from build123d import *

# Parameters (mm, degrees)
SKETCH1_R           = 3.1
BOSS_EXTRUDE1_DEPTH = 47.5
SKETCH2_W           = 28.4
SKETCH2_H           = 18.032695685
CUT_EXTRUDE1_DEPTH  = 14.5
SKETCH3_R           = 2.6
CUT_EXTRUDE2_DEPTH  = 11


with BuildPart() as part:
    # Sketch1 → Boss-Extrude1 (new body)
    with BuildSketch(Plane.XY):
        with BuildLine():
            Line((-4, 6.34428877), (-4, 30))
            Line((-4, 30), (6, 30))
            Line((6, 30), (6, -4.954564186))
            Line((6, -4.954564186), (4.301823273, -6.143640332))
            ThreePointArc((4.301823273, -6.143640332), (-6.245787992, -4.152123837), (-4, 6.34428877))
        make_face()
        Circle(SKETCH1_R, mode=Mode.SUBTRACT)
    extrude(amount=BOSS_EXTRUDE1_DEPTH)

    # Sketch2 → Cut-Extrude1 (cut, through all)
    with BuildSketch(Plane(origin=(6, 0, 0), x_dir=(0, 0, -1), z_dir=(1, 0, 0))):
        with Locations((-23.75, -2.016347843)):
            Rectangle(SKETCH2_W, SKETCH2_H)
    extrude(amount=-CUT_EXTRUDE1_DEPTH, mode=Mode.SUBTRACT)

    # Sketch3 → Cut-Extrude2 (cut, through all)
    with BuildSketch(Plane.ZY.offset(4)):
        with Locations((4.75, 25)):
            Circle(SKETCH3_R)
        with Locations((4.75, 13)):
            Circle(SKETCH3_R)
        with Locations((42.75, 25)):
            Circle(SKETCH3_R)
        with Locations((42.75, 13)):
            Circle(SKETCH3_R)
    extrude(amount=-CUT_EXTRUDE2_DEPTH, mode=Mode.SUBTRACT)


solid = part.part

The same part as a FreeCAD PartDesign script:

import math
import FreeCAD as App
import Part
import Sketcher
Q = App.Units.Quantity


def add_polygon(sketch, points):
    """Adds a closed chain of lines whose ends are joined by coincident constraints."""
    first, n = sketch.GeometryCount, len(points)
    for a, b in zip(points, points[1:] + points[:1]):
        sketch.addGeometry(Part.LineSegment(App.Vector(*a, 0), App.Vector(*b, 0)), False)
    for i in range(n):
        sketch.addConstraint(Sketcher.Constraint("Coincident", first + i, 2, first + (i + 1) % n, 1))

doc = App.newDocument("Part")
body = doc.addObject("PartDesign::Body", "Body")

sketch1 = body.newObject("Sketcher::SketchObject", "Sketch")
sketch1.AttachmentSupport = (doc.getObject("XY_Plane"), [""])
sketch1.MapMode = "FlatFace"
sketch1.addGeometry([
    Part.LineSegment(App.Vector(-4, 30, 0), App.Vector(-4, 6.3, 0)),
    Part.ArcOfCircle(Part.Circle(App.Vector(0, 0, 0), App.Vector(0, 0, 1), 7.5), math.radians(122), math.radians(305)),
    Part.LineSegment(App.Vector(4.3, -6.1, 0), App.Vector(6, -5, 0)),
    Part.LineSegment(App.Vector(6, -5, 0), App.Vector(6, 30, 0)),
    Part.LineSegment(App.Vector(6, 30, 0), App.Vector(-4, 30, 0)),
    Part.Circle(App.Vector(0, 0, 0), App.Vector(0, 0, 1), 3.1),
], False)
sketch1.addConstraint([
    Sketcher.Constraint("Coincident", 0, 2, 1, 1),
    Sketcher.Constraint("Tangent", 1, 2, 2, 1),
    Sketcher.Constraint("Coincident", 2, 2, 3, 1),
    Sketcher.Constraint("Coincident", 3, 2, 4, 1),
    Sketcher.Constraint("Coincident", 4, 2, 0, 1),
    Sketcher.Constraint("Vertical", 0),
    Sketcher.Constraint("Vertical", 3),
    Sketcher.Constraint("Horizontal", 4),
    Sketcher.Constraint("Coincident", 1, 3, -1, 1),
    Sketcher.Constraint("Coincident", 5, 3, -1, 1),
    Sketcher.Constraint("Diameter", 5, Q("6.2 mm")),
    Sketcher.Constraint("Radius", 1, Q("7.5 mm")),
    Sketcher.Constraint("DistanceX", 4, 2, 4, 1, Q("10 mm")),
    Sketcher.Constraint("Angle", 2, Q("35 deg")),
    Sketcher.Constraint("DistanceX", 0, 2, -1, 1, Q("4 mm")),
    Sketcher.Constraint("DistanceY", -1, 1, 3, 2, Q("30 mm")),
])
pad1 = body.newObject("PartDesign::Pad", "Pad")
pad1.Profile = sketch1
pad1.Length = 47.5

sketch2 = body.newObject("Sketcher::SketchObject", "Sketch001")
sketch2.AttachmentSupport = (doc.getObject("YZ_Plane"), [""])
sketch2.MapMode = "FlatFace"
sketch2.AttachmentOffset = App.Placement(App.Vector(0, 0, 6), App.Rotation())
add_polygon(sketch2, [(7, 38), (-11, 38), (-11, 10), (7, 10)])
sketch2.addConstraint([
    Sketcher.Constraint("Horizontal", 0),
    Sketcher.Constraint("Vertical", 1),
    Sketcher.Constraint("Horizontal", 2),
    Sketcher.Constraint("Vertical", 3),
    Sketcher.Constraint("DistanceY", 1, 2, 1, 1, Q("28.4 mm")),
    Sketcher.Constraint("DistanceX", -1, 1, 2, 2, Q("7 mm")),
    Sketcher.Constraint("DistanceY", -1, 1, 0, 2, Q("37.95 mm")),
    Sketcher.Constraint("DistanceX", 0, 2, 0, 1, Q("18.032696 mm")),
])
pocket1 = body.newObject("PartDesign::Pocket", "Pocket")
pocket1.Profile = sketch2
pocket1.Type = "ThroughAll"

sketch3 = body.newObject("Sketcher::SketchObject", "Sketch002")
sketch3.AttachmentSupport = (doc.getObject("YZ_Plane"), [""])
sketch3.MapMode = "FlatFace"
sketch3.AttachmentOffset = App.Placement(App.Vector(0, 0, -4), App.Rotation())
sketch3.addGeometry([
    Part.Circle(App.Vector(25, 4.8, 0), App.Vector(0, 0, 1), 2.6),
    Part.Circle(App.Vector(13, 4.8, 0), App.Vector(0, 0, 1), 2.6),
    Part.Circle(App.Vector(25, 42.8, 0), App.Vector(0, 0, 1), 2.6),
    Part.Circle(App.Vector(13, 42.8, 0), App.Vector(0, 0, 1), 2.6),
], False)
sketch3.addConstraint([
    Sketcher.Constraint("Equal", 0, 1),
    Sketcher.Constraint("Equal", 1, 2),
    Sketcher.Constraint("Equal", 2, 3),
    Sketcher.Constraint("Horizontal", 0, 3, 1, 3),
    Sketcher.Constraint("Horizontal", 2, 3, 3, 3),
    Sketcher.Constraint("Vertical", 0, 3, 2, 3),
    Sketcher.Constraint("Vertical", 1, 3, 3, 3),
    Sketcher.Constraint("Diameter", 0, Q("5.2 mm")),
    Sketcher.Constraint("DistanceX", -1, 1, 0, 3, Q("25 mm")),
    Sketcher.Constraint("DistanceX", -1, 1, 1, 3, Q("13 mm")),
    Sketcher.Constraint("DistanceY", 0, 3, 2, 3, Q("38 mm")),
    Sketcher.Constraint("DistanceY", -1, 1, 0, 3, Q("4.75 mm")),
])
pocket2 = body.newObject("PartDesign::Pocket", "Pocket001")
pocket2.Profile = sketch3
pocket2.Type = "ThroughAll"
pocket2.Reversed = True

doc.recompute()
